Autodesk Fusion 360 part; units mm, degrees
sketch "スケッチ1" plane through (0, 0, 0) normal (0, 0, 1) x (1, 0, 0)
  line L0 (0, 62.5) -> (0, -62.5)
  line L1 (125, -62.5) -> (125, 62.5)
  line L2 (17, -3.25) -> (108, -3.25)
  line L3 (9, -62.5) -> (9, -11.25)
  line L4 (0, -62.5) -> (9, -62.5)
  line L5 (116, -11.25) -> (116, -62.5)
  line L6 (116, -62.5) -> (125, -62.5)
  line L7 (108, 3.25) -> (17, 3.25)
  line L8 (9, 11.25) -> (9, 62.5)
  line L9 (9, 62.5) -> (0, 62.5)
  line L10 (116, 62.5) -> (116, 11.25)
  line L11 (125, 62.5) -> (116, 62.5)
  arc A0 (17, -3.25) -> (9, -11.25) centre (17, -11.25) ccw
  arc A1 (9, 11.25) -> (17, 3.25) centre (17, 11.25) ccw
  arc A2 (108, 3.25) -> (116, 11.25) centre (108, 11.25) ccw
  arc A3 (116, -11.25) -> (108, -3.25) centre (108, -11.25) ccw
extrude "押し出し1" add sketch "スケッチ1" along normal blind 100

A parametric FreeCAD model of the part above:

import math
import FreeCAD as App
import Part
import Sketcher
from FreeCAD import Vector

doc = App.newDocument("Part")
body = doc.addObject("PartDesign::Body", "Body")

# Sketch on XY plane
sketch1 = body.newObject("Sketcher::SketchObject", "Sketch")
sketch1.AttachmentSupport = (doc.getObject("XY_Plane"), [""])
sketch1.MapMode = "FlatFace"
sketch1.addGeometry(Part.LineSegment(Vector(9, 62, 0), Vector(0, 62, 0)), False)
sketch1.addGeometry(Part.LineSegment(Vector(0, 62, 0), Vector(0, -62, 0)), False)
sketch1.addGeometry(Part.LineSegment(Vector(0, -62, 0), Vector(9, -62, 0)), False)
sketch1.addGeometry(Part.LineSegment(Vector(9, -62, 0), Vector(9, -11, 0)), False)
sketch1.addGeometry(Part.ArcOfCircle(Part.Circle(Vector(17, -11, 0), Vector(0, 0, 1), 8), math.radians(90), math.radians(180)), False)
sketch1.addGeometry(Part.LineSegment(Vector(17, -3, 0), Vector(108, -3, 0)), False)
sketch1.addGeometry(Part.ArcOfCircle(Part.Circle(Vector(108, -11, 0), Vector(0, 0, 1), 8), math.radians(0), math.radians(90)), False)
sketch1.addGeometry(Part.LineSegment(Vector(116, -11, 0), Vector(116, -62, 0)), False)
sketch1.addGeometry(Part.LineSegment(Vector(116, -62, 0), Vector(125, -62, 0)), False)
sketch1.addGeometry(Part.LineSegment(Vector(125, -62, 0), Vector(125, 62, 0)), False)
sketch1.addGeometry(Part.LineSegment(Vector(125, 62, 0), Vector(116, 62, 0)), False)
sketch1.addGeometry(Part.LineSegment(Vector(116, 62, 0), Vector(116, 11, 0)), False)
sketch1.addGeometry(Part.ArcOfCircle(Part.Circle(Vector(108, 11, 0), Vector(0, 0, 1), 8), math.radians(-90), math.radians(0)), False)
sketch1.addGeometry(Part.LineSegment(Vector(108, 3, 0), Vector(17, 3, 0)), False)
sketch1.addGeometry(Part.ArcOfCircle(Part.Circle(Vector(17, 11, 0), Vector(0, 0, 1), 8), math.radians(180), math.radians(270)), False)
sketch1.addGeometry(Part.LineSegment(Vector(9, 11, 0), Vector(9, 62, 0)), False)
sketch1.addConstraint(Sketcher.Constraint("Coincident", 0, 2, 1, 1))
sketch1.addConstraint(Sketcher.Constraint("Coincident", 1, 2, 2, 1))
sketch1.addConstraint(Sketcher.Constraint("Coincident", 2, 2, 3, 1))
sketch1.addConstraint(Sketcher.Constraint("Tangent", 3, 2, 4, 2))
sketch1.addConstraint(Sketcher.Constraint("Tangent", 4, 1, 5, 1))
sketch1.addConstraint(Sketcher.Constraint("Tangent", 5, 2, 6, 2))
sketch1.addConstraint(Sketcher.Constraint("Tangent", 6, 1, 7, 1))
sketch1.addConstraint(Sketcher.Constraint("Coincident", 7, 2, 8, 1))
sketch1.addConstraint(Sketcher.Constraint("Coincident", 8, 2, 9, 1))
sketch1.addConstraint(Sketcher.Constraint("Coincident", 9, 2, 10, 1))
sketch1.addConstraint(Sketcher.Constraint("Coincident", 10, 2, 11, 1))
sketch1.addConstraint(Sketcher.Constraint("Tangent", 11, 2, 12, 2))
sketch1.addConstraint(Sketcher.Constraint("Tangent", 12, 1, 13, 1))
sketch1.addConstraint(Sketcher.Constraint("Tangent", 13, 2, 14, 2))
sketch1.addConstraint(Sketcher.Constraint("Tangent", 14, 1, 15, 1))
sketch1.addConstraint(Sketcher.Constraint("Coincident", 15, 2, 0, 1))
sketch1.addConstraint(Sketcher.Constraint("Horizontal", 0))
sketch1.addConstraint(Sketcher.Constraint("Vertical", 1))
sketch1.addConstraint(Sketcher.Constraint("Horizontal", 2))
sketch1.addConstraint(Sketcher.Constraint("Vertical", 3))
sketch1.addConstraint(Sketcher.Constraint("Horizontal", 5))
sketch1.addConstraint(Sketcher.Constraint("Vertical", 7))
sketch1.addConstraint(Sketcher.Constraint("Horizontal", 8))
sketch1.addConstraint(Sketcher.Constraint("Vertical", 9))
sketch1.addConstraint(Sketcher.Constraint("Horizontal", 10))
sketch1.addConstraint(Sketcher.Constraint("Vertical", 11))
sketch1.addConstraint(Sketcher.Constraint("Horizontal", 13))
sketch1.addConstraint(Sketcher.Constraint("Vertical", 15))
sketch1.addConstraint(Sketcher.Constraint("Equal", 4, 6))
sketch1.addConstraint(Sketcher.Constraint("Equal", 6, 12))
sketch1.addConstraint(Sketcher.Constraint("Equal", 12, 14))
sketch1.addConstraint(Sketcher.Constraint("Symmetric", 0, 2, 1, 2, -1, 1))
sketch1.addConstraint(Sketcher.Constraint("Symmetric", 6, 3, 12, 3, -1))
sketch1.addConstraint(Sketcher.Constraint("Horizontal", 2, 2, 7, 2))
sketch1.addConstraint(Sketcher.Constraint("Horizontal", 0, 2, 9, 2))
sketch1.addConstraint(Sketcher.Constraint("Vertical", 4, 3, 14, 3))
sketch1.addConstraint(Sketcher.Constraint("Equal", 2, 8))
sketch1.addConstraint(Sketcher.Constraint("Radius", 4, 8.0))
sketch1.addConstraint(Sketcher.Constraint("DistanceX", 0, 2, 0, 1, 9.0))
sketch1.addConstraint(Sketcher.Constraint("DistanceX", 5, 1, 5, 2, 91.0))
sketch1.addConstraint(Sketcher.Constraint("DistanceY", 1, 2, 1, 1, 125.0))
sketch1.addConstraint(Sketcher.Constraint("DistanceY", 3, 1, 3, 2, 51.25))
pad1 = body.newObject("PartDesign::Pad", "Pad")
pad1.Profile = sketch1
pad1.Length = 100

doc.recompute()
